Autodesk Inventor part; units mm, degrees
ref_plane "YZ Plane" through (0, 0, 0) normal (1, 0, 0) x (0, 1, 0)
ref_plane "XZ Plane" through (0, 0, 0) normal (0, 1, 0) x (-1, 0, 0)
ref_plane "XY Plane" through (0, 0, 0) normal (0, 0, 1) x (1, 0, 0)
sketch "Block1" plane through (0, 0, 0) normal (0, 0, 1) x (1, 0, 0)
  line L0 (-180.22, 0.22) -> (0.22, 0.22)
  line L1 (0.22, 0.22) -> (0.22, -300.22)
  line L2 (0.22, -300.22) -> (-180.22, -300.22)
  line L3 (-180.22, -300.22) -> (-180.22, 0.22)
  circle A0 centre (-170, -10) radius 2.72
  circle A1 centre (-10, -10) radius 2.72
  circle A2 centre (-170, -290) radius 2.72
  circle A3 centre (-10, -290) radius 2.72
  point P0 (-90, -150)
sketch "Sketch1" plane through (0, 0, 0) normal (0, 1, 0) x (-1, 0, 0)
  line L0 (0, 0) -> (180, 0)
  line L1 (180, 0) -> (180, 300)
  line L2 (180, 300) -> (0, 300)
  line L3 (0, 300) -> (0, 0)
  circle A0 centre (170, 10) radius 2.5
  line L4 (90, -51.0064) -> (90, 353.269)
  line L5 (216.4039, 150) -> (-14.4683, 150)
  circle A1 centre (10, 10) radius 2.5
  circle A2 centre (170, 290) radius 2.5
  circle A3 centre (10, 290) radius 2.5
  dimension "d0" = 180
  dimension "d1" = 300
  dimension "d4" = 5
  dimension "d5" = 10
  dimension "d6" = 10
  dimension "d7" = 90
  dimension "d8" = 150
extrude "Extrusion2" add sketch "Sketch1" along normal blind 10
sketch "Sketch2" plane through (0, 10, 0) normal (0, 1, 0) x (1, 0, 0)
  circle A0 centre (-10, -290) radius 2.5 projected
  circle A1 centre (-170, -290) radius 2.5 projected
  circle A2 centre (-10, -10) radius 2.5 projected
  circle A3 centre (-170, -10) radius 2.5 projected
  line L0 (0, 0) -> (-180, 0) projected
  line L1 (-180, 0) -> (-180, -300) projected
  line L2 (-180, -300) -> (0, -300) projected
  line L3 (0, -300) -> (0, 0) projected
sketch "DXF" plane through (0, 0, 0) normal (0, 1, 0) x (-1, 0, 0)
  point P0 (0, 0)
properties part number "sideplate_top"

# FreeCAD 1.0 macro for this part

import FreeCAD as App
import Part
import Sketcher

doc = App.newDocument("Part")
params = doc.addObject("Spreadsheet::Sheet", "Params")
for row, (alias, value) in enumerate([
    ("sketch1_diameter", "5 mm"),
    ("sketch1_width", "180 mm"),
    ("sketch1_height", "300 mm"),
    ("pad1_length", "10 mm"),
], start=1):
    params.set(f"A{row}", alias)
    params.set(f"B{row}", "=" + value)
    params.setAlias(f"B{row}", alias)

body = doc.addObject("PartDesign::Body", "Body")

# Sketch on XZ plane
sketch1 = body.newObject("Sketcher::SketchObject", "Sketch")
sketch1.AttachmentSupport = (doc.getObject("XZ_Plane"), [""])
sketch1.MapMode = "FlatFace"
sketch1.addGeometry(Part.LineSegment(App.Vector(0, 0, 0), App.Vector(-180, 0, 0)), False)
sketch1.addGeometry(Part.LineSegment(App.Vector(-180, 0, 0), App.Vector(-180, 300, 0)), False)
sketch1.addGeometry(Part.LineSegment(App.Vector(-180, 300, 0), App.Vector(0, 300, 0)), False)
sketch1.addGeometry(Part.LineSegment(App.Vector(0, 300, 0), App.Vector(0, 0, 0)), False)
sketch1.addGeometry(Part.Circle(App.Vector(-10, 10, 0), App.Vector(0, 0, 1), 2.5), False)
sketch1.addGeometry(Part.Circle(App.Vector(-10, 290, 0), App.Vector(0, 0, 1), 2.5), False)
sketch1.addGeometry(Part.Circle(App.Vector(-170, 10, 0), App.Vector(0, 0, 1), 2.5), False)
sketch1.addGeometry(Part.Circle(App.Vector(-170, 290, 0), App.Vector(0, 0, 1), 2.5), False)
sketch1.addConstraint(Sketcher.Constraint("Coincident", 0, 2, 1, 1))
sketch1.addConstraint(Sketcher.Constraint("Coincident", 1, 2, 2, 1))
sketch1.addConstraint(Sketcher.Constraint("Coincident", 2, 2, 3, 1))
sketch1.addConstraint(Sketcher.Constraint("Coincident", 3, 2, 0, 1))
sketch1.addConstraint(Sketcher.Constraint("Horizontal", 0))
sketch1.addConstraint(Sketcher.Constraint("Vertical", 1))
sketch1.addConstraint(Sketcher.Constraint("Horizontal", 2))
sketch1.addConstraint(Sketcher.Constraint("Vertical", 3))
sketch1.addConstraint(Sketcher.Constraint("Coincident", 3, 2, -1, 1))
sketch1.addConstraint(Sketcher.Constraint("Equal", 4, 5))
sketch1.addConstraint(Sketcher.Constraint("Equal", 5, 6))
sketch1.addConstraint(Sketcher.Constraint("Equal", 6, 7))
sketch1.addConstraint(Sketcher.Constraint("Horizontal", 4, 3, 6, 3))
sketch1.addConstraint(Sketcher.Constraint("Horizontal", 5, 3, 7, 3))
sketch1.addConstraint(Sketcher.Constraint("Vertical", 4, 3, 5, 3))
sketch1.addConstraint(Sketcher.Constraint("Vertical", 6, 3, 7, 3))
sketch1.addConstraint(Sketcher.Constraint("Diameter", 4, 5.0))
sketch1.addConstraint(Sketcher.Constraint("DistanceX", 0, 2, 0, 1, 180.0))
sketch1.addConstraint(Sketcher.Constraint("DistanceY", 1, 1, 1, 2, 300.0))
sketch1.addConstraint(Sketcher.Constraint("DistanceX", 4, 3, -1, 1, 10.0))
sketch1.addConstraint(Sketcher.Constraint("DistanceY", -1, 1, 4, 3, 10.0))
sketch1.addConstraint(Sketcher.Constraint("DistanceX", 0, 2, 6, 3, 10.0))
sketch1.addConstraint(Sketcher.Constraint("DistanceY", 7, 3, 1, 2, 10.0))
sketch1.setExpression("Constraints[16]", "Params.sketch1_diameter")
sketch1.setExpression("Constraints[17]", "Params.sketch1_width")
sketch1.setExpression("Constraints[18]", "Params.sketch1_height")
pad1 = body.newObject("PartDesign::Pad", "Pad")
pad1.Profile = sketch1
pad1.setExpression("Length", "Params.pad1_length")
pad1.Reversed = True

doc.recompute()
